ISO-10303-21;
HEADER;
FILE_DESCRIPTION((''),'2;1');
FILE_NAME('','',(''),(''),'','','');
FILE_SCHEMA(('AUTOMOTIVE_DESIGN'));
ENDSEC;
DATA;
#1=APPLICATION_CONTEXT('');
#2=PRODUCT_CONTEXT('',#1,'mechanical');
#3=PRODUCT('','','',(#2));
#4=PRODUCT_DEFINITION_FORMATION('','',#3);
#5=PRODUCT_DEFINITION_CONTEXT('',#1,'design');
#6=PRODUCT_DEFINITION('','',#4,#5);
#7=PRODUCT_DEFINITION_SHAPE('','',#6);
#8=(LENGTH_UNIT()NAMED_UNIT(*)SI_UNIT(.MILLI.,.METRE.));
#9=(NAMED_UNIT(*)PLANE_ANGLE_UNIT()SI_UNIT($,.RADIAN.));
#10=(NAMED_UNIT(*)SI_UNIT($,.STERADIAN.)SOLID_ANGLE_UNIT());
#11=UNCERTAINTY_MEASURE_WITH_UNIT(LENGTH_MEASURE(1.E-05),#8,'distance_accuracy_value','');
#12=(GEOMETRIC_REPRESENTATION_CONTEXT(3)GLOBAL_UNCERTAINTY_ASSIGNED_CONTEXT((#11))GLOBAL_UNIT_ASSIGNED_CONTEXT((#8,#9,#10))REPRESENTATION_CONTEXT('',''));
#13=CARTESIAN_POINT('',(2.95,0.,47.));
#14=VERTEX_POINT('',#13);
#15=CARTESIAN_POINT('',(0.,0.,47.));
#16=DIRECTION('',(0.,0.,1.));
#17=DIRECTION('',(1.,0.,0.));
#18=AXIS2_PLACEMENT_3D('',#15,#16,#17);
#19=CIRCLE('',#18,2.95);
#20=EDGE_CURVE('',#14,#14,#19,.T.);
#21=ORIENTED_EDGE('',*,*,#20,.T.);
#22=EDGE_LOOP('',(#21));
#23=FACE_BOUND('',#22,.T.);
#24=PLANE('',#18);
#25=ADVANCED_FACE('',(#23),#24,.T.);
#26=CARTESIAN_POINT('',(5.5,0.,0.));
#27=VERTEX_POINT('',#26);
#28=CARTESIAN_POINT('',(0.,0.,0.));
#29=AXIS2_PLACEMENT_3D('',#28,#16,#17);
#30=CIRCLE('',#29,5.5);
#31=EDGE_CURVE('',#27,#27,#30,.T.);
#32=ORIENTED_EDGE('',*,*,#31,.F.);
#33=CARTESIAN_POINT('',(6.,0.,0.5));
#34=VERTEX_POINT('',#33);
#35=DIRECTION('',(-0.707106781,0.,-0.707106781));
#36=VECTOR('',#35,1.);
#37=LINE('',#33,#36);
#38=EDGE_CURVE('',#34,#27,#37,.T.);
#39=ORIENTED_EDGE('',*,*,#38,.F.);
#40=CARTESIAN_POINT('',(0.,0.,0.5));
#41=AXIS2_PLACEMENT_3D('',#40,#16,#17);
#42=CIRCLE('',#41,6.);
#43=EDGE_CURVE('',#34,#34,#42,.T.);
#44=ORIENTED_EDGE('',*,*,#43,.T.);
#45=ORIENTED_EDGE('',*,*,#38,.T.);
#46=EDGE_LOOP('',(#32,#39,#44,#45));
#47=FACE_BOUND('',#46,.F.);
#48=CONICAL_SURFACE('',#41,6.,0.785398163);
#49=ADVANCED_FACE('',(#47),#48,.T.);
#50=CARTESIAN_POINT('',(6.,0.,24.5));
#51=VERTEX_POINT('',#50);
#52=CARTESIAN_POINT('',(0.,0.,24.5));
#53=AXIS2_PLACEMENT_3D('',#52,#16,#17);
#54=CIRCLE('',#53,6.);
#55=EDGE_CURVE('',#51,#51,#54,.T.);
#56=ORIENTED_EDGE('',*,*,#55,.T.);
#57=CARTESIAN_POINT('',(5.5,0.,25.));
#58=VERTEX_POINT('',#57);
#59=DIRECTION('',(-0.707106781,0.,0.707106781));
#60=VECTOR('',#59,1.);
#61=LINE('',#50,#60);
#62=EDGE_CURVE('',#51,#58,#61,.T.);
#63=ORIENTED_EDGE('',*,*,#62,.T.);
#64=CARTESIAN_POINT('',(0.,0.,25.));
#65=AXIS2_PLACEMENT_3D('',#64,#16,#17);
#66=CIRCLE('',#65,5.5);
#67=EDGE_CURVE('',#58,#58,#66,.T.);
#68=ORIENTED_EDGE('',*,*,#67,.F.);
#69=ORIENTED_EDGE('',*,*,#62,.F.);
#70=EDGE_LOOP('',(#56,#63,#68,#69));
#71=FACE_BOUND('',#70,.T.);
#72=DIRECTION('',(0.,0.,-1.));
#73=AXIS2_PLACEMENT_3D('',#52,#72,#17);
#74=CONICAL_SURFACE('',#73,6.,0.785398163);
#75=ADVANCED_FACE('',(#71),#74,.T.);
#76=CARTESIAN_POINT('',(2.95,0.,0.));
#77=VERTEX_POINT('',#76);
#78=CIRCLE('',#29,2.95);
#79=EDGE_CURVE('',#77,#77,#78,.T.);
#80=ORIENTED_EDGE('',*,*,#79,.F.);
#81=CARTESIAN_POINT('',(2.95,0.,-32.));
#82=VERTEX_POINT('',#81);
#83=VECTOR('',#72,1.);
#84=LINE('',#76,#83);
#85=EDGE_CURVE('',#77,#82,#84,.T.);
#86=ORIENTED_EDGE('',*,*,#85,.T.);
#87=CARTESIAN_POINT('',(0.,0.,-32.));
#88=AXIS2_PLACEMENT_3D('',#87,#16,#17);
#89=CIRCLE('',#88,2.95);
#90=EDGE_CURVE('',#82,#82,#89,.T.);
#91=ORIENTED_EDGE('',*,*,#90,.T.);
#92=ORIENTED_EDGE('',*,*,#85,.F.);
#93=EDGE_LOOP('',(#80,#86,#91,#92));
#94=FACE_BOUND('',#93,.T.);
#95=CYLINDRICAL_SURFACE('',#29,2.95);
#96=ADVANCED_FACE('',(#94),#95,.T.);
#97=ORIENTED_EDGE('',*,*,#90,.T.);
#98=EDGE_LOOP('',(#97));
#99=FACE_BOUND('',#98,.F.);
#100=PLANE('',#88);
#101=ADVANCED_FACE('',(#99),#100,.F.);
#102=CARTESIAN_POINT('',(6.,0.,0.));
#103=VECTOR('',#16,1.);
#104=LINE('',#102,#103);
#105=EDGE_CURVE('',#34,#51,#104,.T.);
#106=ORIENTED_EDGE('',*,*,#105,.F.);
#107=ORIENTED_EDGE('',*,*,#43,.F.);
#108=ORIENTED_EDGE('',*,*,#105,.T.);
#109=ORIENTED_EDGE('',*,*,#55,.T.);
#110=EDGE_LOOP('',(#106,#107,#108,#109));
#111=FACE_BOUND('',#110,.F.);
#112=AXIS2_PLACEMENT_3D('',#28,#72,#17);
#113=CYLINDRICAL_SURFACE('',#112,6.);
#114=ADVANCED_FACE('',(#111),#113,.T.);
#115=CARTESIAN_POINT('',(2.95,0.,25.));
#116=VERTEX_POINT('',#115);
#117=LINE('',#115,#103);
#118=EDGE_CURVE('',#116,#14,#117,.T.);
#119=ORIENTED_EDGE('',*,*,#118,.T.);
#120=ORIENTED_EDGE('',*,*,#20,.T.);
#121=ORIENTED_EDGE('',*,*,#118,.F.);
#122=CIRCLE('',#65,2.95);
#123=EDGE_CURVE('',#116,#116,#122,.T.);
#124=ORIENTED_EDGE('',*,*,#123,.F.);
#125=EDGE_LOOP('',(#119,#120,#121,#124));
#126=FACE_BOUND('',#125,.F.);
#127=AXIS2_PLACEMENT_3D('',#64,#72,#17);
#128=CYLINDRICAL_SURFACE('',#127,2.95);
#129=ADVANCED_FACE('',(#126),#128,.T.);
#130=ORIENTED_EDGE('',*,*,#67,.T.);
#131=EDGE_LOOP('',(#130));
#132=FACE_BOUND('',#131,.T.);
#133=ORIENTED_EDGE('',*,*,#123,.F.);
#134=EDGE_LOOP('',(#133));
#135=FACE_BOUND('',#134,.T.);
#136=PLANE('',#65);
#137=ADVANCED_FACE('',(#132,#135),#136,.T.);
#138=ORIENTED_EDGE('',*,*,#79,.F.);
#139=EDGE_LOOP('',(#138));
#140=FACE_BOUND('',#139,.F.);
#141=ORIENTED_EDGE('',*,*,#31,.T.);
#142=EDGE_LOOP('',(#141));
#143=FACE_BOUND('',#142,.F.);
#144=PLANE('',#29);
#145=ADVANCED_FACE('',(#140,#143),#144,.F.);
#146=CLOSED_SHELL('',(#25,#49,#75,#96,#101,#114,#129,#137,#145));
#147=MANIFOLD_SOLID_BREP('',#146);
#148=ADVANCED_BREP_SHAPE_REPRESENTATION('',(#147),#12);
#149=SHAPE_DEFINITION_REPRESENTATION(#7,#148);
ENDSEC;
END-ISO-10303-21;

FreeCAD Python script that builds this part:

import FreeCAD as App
import Part
import Sketcher
from FreeCAD import Vector


def edges_at(feature, points):
    """Names of the edges that pass closest to the given points."""
    edges = feature.Shape.Edges
    near = lambda p: min(range(len(edges)), key=lambda i: edges[i].distToShape(Part.Vertex(*p))[0])
    return sorted({f"Edge{near(p) + 1}" for p in points})

doc = App.newDocument("Part")
params = doc.addObject("Spreadsheet::Sheet", "Params")
for row, (alias, value) in enumerate([
    ("sketch1_diameter", "5.9 mm"),
    ("pad1_length", "32 mm"),
    ("sketch2_diameter", "12 mm"),
    ("pad2_length", "25 mm"),
    ("sketch3_diameter", "5.9 mm"),
    ("pad3_length", "22 mm"),
    ("chamfer_size", "0.5 mm"),
], start=1):
    params.set(f"A{row}", alias)
    params.set(f"B{row}", "=" + value)
    params.setAlias(f"B{row}", alias)

body = doc.addObject("PartDesign::Body", "Body")

# Sketch on XY plane
sketch1 = doc.addObject("Sketcher::SketchObject", "Sketch")
body.addObject(sketch1)
sketch1.AttachmentSupport = (doc.XY_Plane, [""])
sketch1.MapMode = "FlatFace"
sketch1.addGeometry(Part.Circle(Vector(0, 0, 0), Vector(0, 0, 1), 3), False)
sketch1.addConstraint(Sketcher.Constraint("Coincident", 0, 3, -1, 1))
sketch1.addConstraint(Sketcher.Constraint("Diameter", 0, 5.9))
sketch1.setExpression("Constraints[1]", "Params.sketch1_diameter")
pad1 = doc.addObject("PartDesign::Pad", "Pad")
body.addObject(pad1)
pad1.Profile = sketch1
pad1.setExpression("Length", "Params.pad1_length")
pad1.Reversed = True

# Sketch on XY plane
sketch2 = doc.addObject("Sketcher::SketchObject", "Sketch001")
body.addObject(sketch2)
sketch2.AttachmentSupport = (doc.XY_Plane, [""])
sketch2.MapMode = "FlatFace"
sketch2.addGeometry(Part.Circle(Vector(0, 0, 0), Vector(0, 0, 1), 6), False)
sketch2.addConstraint(Sketcher.Constraint("Coincident", 0, 3, -1, 1))
sketch2.addConstraint(Sketcher.Constraint("Diameter", 0, 12.0))
sketch2.setExpression("Constraints[1]", "Params.sketch2_diameter")
pad2 = doc.addObject("PartDesign::Pad", "Pad001")
body.addObject(pad2)
pad2.Profile = sketch2
pad2.setExpression("Length", "Params.pad2_length")

# Sketch on XY plane
sketch3 = doc.addObject("Sketcher::SketchObject", "Sketch002")
body.addObject(sketch3)
sketch3.AttachmentSupport = (doc.XY_Plane, [""])
sketch3.MapMode = "FlatFace"
sketch3.AttachmentOffset = App.Placement(Vector(0, 0, 25), App.Rotation())
sketch3.addGeometry(Part.Circle(Vector(0, 0, 0), Vector(0, 0, 1), 3), False)
sketch3.addConstraint(Sketcher.Constraint("Coincident", 0, 3, -1, 1))
sketch3.addConstraint(Sketcher.Constraint("Diameter", 0, 5.9))
sketch3.setExpression("Constraints[1]", "Params.sketch3_diameter")
pad3 = doc.addObject("PartDesign::Pad", "Pad002")
body.addObject(pad3)
pad3.Profile = sketch3
pad3.setExpression("Length", "Params.pad3_length")
doc.recompute()

chamfer = doc.addObject("PartDesign::Chamfer", "Chamfer")
body.addObject(chamfer)
chamfer.Base = (pad3, edges_at(pad3, [(-6, 0, 25), (-6, 0, 0)]))
chamfer.setExpression("Size", "Params.chamfer_size")

doc.recompute()
